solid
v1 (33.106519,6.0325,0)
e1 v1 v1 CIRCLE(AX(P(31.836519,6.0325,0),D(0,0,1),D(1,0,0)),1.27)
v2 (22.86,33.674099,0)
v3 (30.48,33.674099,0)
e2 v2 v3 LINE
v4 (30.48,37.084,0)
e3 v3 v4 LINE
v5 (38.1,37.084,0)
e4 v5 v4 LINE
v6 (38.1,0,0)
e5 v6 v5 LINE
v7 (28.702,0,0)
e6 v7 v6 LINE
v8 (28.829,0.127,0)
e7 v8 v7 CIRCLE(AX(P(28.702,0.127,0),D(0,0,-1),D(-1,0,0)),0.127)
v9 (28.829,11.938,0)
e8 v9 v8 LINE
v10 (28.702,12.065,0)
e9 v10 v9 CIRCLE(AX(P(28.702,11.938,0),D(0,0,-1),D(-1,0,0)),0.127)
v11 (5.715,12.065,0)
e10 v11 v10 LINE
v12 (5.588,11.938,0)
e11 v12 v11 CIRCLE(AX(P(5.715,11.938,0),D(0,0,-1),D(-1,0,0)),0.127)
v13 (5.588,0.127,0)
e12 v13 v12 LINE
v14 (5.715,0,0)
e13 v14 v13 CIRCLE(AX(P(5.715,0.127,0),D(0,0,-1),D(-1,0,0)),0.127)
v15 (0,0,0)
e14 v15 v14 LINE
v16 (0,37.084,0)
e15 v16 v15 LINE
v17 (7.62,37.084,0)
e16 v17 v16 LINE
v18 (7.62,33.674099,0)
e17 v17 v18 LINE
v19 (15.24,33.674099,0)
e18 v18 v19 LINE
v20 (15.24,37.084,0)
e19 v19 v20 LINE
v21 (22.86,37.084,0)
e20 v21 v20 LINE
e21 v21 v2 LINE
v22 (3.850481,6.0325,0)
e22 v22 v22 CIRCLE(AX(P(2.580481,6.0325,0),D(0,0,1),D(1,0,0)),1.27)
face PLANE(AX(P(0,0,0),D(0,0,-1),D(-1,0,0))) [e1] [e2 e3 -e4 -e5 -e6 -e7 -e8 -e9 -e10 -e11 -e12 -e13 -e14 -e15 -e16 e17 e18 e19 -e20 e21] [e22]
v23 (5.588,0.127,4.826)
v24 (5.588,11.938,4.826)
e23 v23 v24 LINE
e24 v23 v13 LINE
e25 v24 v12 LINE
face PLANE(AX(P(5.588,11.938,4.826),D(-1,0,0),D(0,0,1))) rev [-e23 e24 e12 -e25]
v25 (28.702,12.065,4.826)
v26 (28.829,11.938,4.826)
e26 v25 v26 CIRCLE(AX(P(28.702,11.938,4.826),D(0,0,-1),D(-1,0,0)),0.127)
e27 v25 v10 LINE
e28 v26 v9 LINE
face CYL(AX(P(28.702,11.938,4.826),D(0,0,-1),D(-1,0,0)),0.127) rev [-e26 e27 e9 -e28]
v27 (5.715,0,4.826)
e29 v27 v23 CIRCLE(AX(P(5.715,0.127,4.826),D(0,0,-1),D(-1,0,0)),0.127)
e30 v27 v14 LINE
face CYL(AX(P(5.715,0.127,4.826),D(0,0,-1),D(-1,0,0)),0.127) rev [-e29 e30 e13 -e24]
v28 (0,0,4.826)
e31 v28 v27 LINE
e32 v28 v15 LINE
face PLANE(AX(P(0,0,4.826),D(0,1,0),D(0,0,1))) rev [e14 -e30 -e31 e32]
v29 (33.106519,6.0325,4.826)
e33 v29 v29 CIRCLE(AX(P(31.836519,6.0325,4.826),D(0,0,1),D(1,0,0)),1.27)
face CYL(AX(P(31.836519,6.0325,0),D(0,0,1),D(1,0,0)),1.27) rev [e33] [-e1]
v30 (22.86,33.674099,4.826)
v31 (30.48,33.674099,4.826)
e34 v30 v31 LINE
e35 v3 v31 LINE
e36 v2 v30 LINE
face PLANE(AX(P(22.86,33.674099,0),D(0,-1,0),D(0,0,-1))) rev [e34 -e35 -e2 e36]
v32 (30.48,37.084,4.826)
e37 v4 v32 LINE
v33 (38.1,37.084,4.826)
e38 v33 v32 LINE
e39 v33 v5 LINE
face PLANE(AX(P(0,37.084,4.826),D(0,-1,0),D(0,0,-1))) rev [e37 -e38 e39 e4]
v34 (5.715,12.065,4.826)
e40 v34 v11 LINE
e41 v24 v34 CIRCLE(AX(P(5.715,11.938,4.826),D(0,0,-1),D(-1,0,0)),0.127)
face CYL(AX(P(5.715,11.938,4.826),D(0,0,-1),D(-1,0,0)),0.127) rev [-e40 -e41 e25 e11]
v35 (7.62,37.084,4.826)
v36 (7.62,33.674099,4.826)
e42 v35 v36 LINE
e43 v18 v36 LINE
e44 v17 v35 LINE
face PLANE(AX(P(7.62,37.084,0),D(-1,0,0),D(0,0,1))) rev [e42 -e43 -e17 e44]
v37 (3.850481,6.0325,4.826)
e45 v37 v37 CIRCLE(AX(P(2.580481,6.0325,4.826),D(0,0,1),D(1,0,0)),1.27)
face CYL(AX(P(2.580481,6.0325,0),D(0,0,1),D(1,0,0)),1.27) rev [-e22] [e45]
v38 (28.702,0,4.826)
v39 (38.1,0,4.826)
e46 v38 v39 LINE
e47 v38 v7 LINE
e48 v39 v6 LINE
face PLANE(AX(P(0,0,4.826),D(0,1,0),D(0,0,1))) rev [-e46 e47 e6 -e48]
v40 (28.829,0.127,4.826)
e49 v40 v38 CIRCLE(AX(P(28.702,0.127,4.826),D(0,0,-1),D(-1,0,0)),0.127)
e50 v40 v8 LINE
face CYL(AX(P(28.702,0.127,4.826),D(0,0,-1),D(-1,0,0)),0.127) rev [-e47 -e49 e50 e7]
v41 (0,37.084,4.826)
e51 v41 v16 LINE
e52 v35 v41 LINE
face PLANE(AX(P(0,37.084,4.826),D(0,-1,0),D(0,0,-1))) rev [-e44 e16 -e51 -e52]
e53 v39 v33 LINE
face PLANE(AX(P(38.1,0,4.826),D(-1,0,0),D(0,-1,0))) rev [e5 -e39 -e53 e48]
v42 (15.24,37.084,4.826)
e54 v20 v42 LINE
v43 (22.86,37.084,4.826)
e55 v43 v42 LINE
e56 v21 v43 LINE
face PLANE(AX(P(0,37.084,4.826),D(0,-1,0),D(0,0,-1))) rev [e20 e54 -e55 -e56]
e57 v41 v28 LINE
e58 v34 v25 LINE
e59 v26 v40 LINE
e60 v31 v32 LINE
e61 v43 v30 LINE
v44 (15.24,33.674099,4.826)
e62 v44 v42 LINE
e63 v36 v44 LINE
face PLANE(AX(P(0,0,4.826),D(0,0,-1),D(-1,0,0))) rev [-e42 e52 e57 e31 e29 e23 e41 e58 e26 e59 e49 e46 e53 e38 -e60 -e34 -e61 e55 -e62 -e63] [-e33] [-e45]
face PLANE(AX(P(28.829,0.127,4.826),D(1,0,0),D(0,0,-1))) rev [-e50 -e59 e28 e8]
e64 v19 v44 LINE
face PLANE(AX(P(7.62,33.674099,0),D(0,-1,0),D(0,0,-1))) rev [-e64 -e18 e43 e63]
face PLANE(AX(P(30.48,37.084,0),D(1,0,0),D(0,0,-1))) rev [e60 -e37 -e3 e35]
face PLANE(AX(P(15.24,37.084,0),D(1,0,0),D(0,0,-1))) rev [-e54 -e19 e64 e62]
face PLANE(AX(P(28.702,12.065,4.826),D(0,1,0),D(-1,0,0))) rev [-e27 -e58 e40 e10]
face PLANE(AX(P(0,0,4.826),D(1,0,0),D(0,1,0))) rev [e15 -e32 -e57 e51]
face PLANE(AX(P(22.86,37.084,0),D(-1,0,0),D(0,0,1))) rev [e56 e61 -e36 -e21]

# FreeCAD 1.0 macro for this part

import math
import FreeCAD as App
import Part
import Sketcher
from FreeCAD import Vector
Q = App.Units.Quantity


def add_polygon(sketch, points):
    """Adds a closed chain of lines whose ends are joined by coincident constraints."""
    first, n = sketch.GeometryCount, len(points)
    for a, b in zip(points, points[1:] + points[:1]):
        sketch.addGeometry(Part.LineSegment(App.Vector(*a, 0), App.Vector(*b, 0)), False)
    for i in range(n):
        sketch.addConstraint(Sketcher.Constraint("Coincident", first + i, 2, first + (i + 1) % n, 1))

doc = App.newDocument("Part")
body = doc.addObject("PartDesign::Body", "Body")

sketch1 = body.newObject("Sketcher::SketchObject", "Sketch")
sketch1.AttachmentSupport = (doc.getObject("XY_Plane"), [""])
sketch1.MapMode = "FlatFace"
add_polygon(sketch1, [(0, 37.084), (0, 0), (38.1, 0), (38.1, 37.084)])
sketch1.addConstraint(Sketcher.Constraint("Vertical", 0))
sketch1.addConstraint(Sketcher.Constraint("Horizontal", 1))
sketch1.addConstraint(Sketcher.Constraint("Vertical", 2))
sketch1.addConstraint(Sketcher.Constraint("Horizontal", 3))
sketch1.addConstraint(Sketcher.Constraint("Coincident", 0, 2, -1, 1))
sketch1.addConstraint(Sketcher.Constraint("DistanceX", 1, 1, 1, 2, Q("1.5 in")))
sketch1.addConstraint(Sketcher.Constraint("DistanceY", 0, 2, 0, 1, Q("1.46 in")))
pad1 = body.newObject("PartDesign::Pad", "Pad")
pad1.Profile = sketch1
pad1.Length = Q("0.19 in")

sketch2 = body.newObject("Sketcher::SketchObject", "Sketch001")
sketch2.AttachmentSupport = (doc.getObject("XY_Plane"), [""])
sketch2.MapMode = "FlatFace"
sketch2.AttachmentOffset = App.Placement(Vector(0, 0, 0.19 * 25.4), App.Rotation())
sketch2.addGeometry(Part.Circle(Vector(2.580481, 6.0325, 0), Vector(0, 0, 1), 1.27), False)
sketch2.addGeometry(Part.Circle(Vector(31.836519, 6.0325, 0), Vector(0, 0, 1), 1.27), False)
sketch2.addConstraint(Sketcher.Constraint("Equal", 0, 1))
sketch2.addConstraint(Sketcher.Constraint("Horizontal", 0, 3, 1, 3))
sketch2.addConstraint(Sketcher.Constraint("Diameter", 0, Q("0.1 in")))
sketch2.addConstraint(Sketcher.Constraint("DistanceY", -1, 1, 0, 3, Q("0.2375 in")))
sketch2.addConstraint(Sketcher.Constraint("DistanceX", -1, 1, 0, 3, Q("2.580481 mm")))
sketch2.addConstraint(Sketcher.Constraint("DistanceX", -1, 1, 1, 3, Q("31.836519 mm")))
pocket1 = body.newObject("PartDesign::Pocket", "Pocket")
pocket1.Profile = sketch2
pocket1.Type = "ThroughAll"

sketch3 = body.newObject("Sketcher::SketchObject", "Sketch002")
sketch3.AttachmentSupport = (doc.getObject("XY_Plane"), [""])
sketch3.MapMode = "FlatFace"
sketch3.addGeometry(Part.LineSegment(Vector(5.715, 12.065, 0), Vector(28.702, 12.065, 0)), False)
sketch3.addGeometry(Part.ArcOfCircle(Part.Circle(Vector(28.702, 11.938, 0), Vector(0, 0, 1), 0.127), math.radians(0), math.radians(90)), False)
sketch3.addGeometry(Part.LineSegment(Vector(28.829, 11.938, 0), Vector(28.829, 0.127, 0)), False)
sketch3.addGeometry(Part.ArcOfCircle(Part.Circle(Vector(28.702, 0.127, 0), Vector(0, 0, 1), 0.127), math.radians(-90), math.radians(0)), False)
sketch3.addGeometry(Part.LineSegment(Vector(28.702, 0, 0), Vector(5.715, 0, 0)), False)
sketch3.addGeometry(Part.ArcOfCircle(Part.Circle(Vector(5.715, 0.127, 0), Vector(0, 0, 1), 0.127), math.radians(-180), math.radians(-90)), False)
sketch3.addGeometry(Part.LineSegment(Vector(5.588, 0.127, 0), Vector(5.588, 11.938, 0)), False)
sketch3.addGeometry(Part.ArcOfCircle(Part.Circle(Vector(5.715, 11.938, 0), Vector(0, 0, 1), 0.127), math.radians(90), math.radians(180)), False)
sketch3.addConstraint(Sketcher.Constraint("Tangent", 0, 2, 1, 2))
sketch3.addConstraint(Sketcher.Constraint("Tangent", 1, 1, 2, 1))
sketch3.addConstraint(Sketcher.Constraint("Tangent", 2, 2, 3, 2))
sketch3.addConstraint(Sketcher.Constraint("Tangent", 3, 1, 4, 1))
sketch3.addConstraint(Sketcher.Constraint("Tangent", 4, 2, 5, 2))
sketch3.addConstraint(Sketcher.Constraint("Tangent", 5, 1, 6, 1))
sketch3.addConstraint(Sketcher.Constraint("Tangent", 6, 2, 7, 2))
sketch3.addConstraint(Sketcher.Constraint("Tangent", 7, 1, 0, 1))
sketch3.addConstraint(Sketcher.Constraint("Horizontal", 0))
sketch3.addConstraint(Sketcher.Constraint("Vertical", 2))
sketch3.addConstraint(Sketcher.Constraint("Horizontal", 4))
sketch3.addConstraint(Sketcher.Constraint("Vertical", 6))
sketch3.addConstraint(Sketcher.Constraint("Equal", 1, 3))
sketch3.addConstraint(Sketcher.Constraint("Equal", 3, 5))
sketch3.addConstraint(Sketcher.Constraint("Equal", 5, 7))
sketch3.addConstraint(Sketcher.Constraint("PointOnObject", 3, 1, -1))
sketch3.addConstraint(Sketcher.Constraint("Radius", 1, Q("0.005 in")))
sketch3.addConstraint(Sketcher.Constraint("DistanceX", 0, 1, 0, 2, Q("0.905 in")))
sketch3.addConstraint(Sketcher.Constraint("DistanceY", 2, 2, 2, 1, Q("0.465 in")))
sketch3.addConstraint(Sketcher.Constraint("DistanceX", -1, 1, 1, 3, Q("1.13 in")))
pocket2 = body.newObject("PartDesign::Pocket", "Pocket001")
pocket2.Profile = sketch3
pocket2.Type = "ThroughAll"
pocket2.Reversed = True

sketch4 = body.newObject("Sketcher::SketchObject", "Sketch003")
sketch4.AttachmentSupport = (doc.getObject("XY_Plane"), [""])
sketch4.MapMode = "FlatFace"
sketch4.AttachmentOffset = App.Placement(Vector(0, 0, 0.19 * 25.4), App.Rotation())
add_polygon(sketch4, [(7.62, 37.084), (7.62, 33.674099), (15.24, 33.674099), (15.24, 37.084)])
add_polygon(sketch4, [(22.86, 37.084), (22.86, 33.674099), (30.48, 33.674099), (30.48, 37.084)])
sketch4.addConstraint(Sketcher.Constraint("Vertical", 0))
sketch4.addConstraint(Sketcher.Constraint("Horizontal", 1))
sketch4.addConstraint(Sketcher.Constraint("Vertical", 2))
sketch4.addConstraint(Sketcher.Constraint("Horizontal", 3))
sketch4.addConstraint(Sketcher.Constraint("Vertical", 4))
sketch4.addConstraint(Sketcher.Constraint("Horizontal", 5))
sketch4.addConstraint(Sketcher.Constraint("Vertical", 6))
sketch4.addConstraint(Sketcher.Constraint("Horizontal", 7))
sketch4.addConstraint(Sketcher.Constraint("Horizontal", 1, 2, 4, 2))
sketch4.addConstraint(Sketcher.Constraint("Horizontal", 3, 2, 6, 2))
sketch4.addConstraint(Sketcher.Constraint("Equal", 3, 5))
sketch4.addConstraint(Sketcher.Constraint("DistanceX", 1, 1, 1, 2, Q("0.3 in")))
sketch4.addConstraint(Sketcher.Constraint("DistanceX", -1, 1, 0, 2, Q("0.3 in")))
sketch4.addConstraint(Sketcher.Constraint("DistanceX", -1, 1, 4, 2, Q("0.9 in")))
sketch4.addConstraint(Sketcher.Constraint("DistanceY", -1, 1, 2, 2, Q("1.46 in")))
sketch4.addConstraint(Sketcher.Constraint("DistanceY", 0, 2, 0, 1, Q("3.409901 mm")))
pocket3 = body.newObject("PartDesign::Pocket", "Pocket002")
pocket3.Profile = sketch4
pocket3.Type = "ThroughAll"

doc.recompute()
